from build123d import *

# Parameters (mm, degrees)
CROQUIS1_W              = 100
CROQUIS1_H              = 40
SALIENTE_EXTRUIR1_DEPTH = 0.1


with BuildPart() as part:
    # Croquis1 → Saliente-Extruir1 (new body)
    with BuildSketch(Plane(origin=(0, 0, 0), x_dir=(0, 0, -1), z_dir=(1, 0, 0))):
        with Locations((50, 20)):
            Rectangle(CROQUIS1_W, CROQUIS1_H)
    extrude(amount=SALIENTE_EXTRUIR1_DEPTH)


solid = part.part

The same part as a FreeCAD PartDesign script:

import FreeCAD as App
import Part
import Sketcher
from FreeCAD import Vector

doc = App.newDocument("Part")
body = doc.addObject("PartDesign::Body", "Body")

# Sketch on YZ plane
sketch1 = doc.addObject("Sketcher::SketchObject", "Sketch")
body.addObject(sketch1)
sketch1.AttachmentSupport = (doc.YZ_Plane, [""])
sketch1.MapMode = "FlatFace"
sketch1.addGeometry([
    Part.LineSegment(Vector(40, 0, 0), Vector(0, 0, 0)),
    Part.LineSegment(Vector(0, 0, 0), Vector(0, -100, 0)),
    Part.LineSegment(Vector(0, -100, 0), Vector(40, -100, 0)),
    Part.LineSegment(Vector(40, -100, 0), Vector(40, 0, 0)),
], False)
sketch1.addConstraint([
    Sketcher.Constraint("Coincident", 0, 2, 1, 1),
    Sketcher.Constraint("Coincident", 1, 2, 2, 1),
    Sketcher.Constraint("Coincident", 2, 2, 3, 1),
    Sketcher.Constraint("Coincident", 3, 2, 0, 1),
    Sketcher.Constraint("Horizontal", 0),
    Sketcher.Constraint("Vertical", 1),
    Sketcher.Constraint("Horizontal", 2),
    Sketcher.Constraint("Vertical", 3),
    Sketcher.Constraint("Coincident", 0, 2, -1, 1),
    Sketcher.Constraint("DistanceX", 0, 2, 0, 1, 40.0),
    Sketcher.Constraint("DistanceY", 1, 2, 1, 1, 100.0),
])
pad1 = doc.addObject("PartDesign::Pad", "Pad")
body.addObject(pad1)
pad1.Profile = sketch1
pad1.Length = 0.1

doc.recompute()
